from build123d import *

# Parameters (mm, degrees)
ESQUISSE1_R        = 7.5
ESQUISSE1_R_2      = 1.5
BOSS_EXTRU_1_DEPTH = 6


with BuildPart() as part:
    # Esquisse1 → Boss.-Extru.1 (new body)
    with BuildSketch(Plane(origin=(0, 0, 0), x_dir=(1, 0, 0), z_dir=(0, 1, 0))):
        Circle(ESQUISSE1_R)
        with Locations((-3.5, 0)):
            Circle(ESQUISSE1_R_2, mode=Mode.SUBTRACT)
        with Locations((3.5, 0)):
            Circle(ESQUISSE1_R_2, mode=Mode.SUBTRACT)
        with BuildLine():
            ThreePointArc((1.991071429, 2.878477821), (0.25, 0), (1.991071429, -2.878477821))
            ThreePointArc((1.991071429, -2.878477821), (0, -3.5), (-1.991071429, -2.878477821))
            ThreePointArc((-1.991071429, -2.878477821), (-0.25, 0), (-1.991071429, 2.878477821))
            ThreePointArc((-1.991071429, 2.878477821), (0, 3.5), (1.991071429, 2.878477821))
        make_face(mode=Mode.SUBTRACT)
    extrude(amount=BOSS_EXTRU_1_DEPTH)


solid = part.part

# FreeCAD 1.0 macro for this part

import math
import FreeCAD as App
import Part
import Sketcher
from FreeCAD import Vector

doc = App.newDocument("Part")
body = doc.addObject("PartDesign::Body", "Body")

# Sketch on XZ plane
sketch1 = body.newObject("Sketcher::SketchObject", "Sketch")
sketch1.AttachmentSupport = (doc.getObject("XZ_Plane"), [""])
sketch1.MapMode = "FlatFace"
sketch1.addGeometry(Part.Circle(Vector(0, 0, 0), Vector(0, 0, 1), 7.5), False)
sketch1.addGeometry(Part.Circle(Vector(-3.5, 0, 0), Vector(0, 0, 1), 1.5), False)
sketch1.addGeometry(Part.ArcOfCircle(Part.Circle(Vector(0, 0, 0), Vector(0, 0, 1), 3.5), math.radians(-125), math.radians(-55)), False)
sketch1.addGeometry(Part.ArcOfCircle(Part.Circle(Vector(3.5, 0, 0), Vector(0, 0, 1), 3.2), math.radians(118), math.radians(242)), False)
sketch1.addGeometry(Part.ArcOfCircle(Part.Circle(Vector(0, 0, 0), Vector(0, 0, 1), 3.5), math.radians(55), math.radians(125)), False)
sketch1.addGeometry(Part.ArcOfCircle(Part.Circle(Vector(-3.5, 0, 0), Vector(0, 0, 1), 3.2), math.radians(-62), math.radians(62)), False)
sketch1.addGeometry(Part.Circle(Vector(3.5, 0, 0), Vector(0, 0, 1), 1.5), False)
sketch1.addConstraint(Sketcher.Constraint("Coincident", 2, 2, 3, 2))
sketch1.addConstraint(Sketcher.Constraint("Coincident", 3, 1, 4, 1))
sketch1.addConstraint(Sketcher.Constraint("Coincident", 4, 2, 5, 2))
sketch1.addConstraint(Sketcher.Constraint("Coincident", 5, 1, 2, 1))
sketch1.addConstraint(Sketcher.Constraint("Coincident", 0, 3, -1, 1))
sketch1.addConstraint(Sketcher.Constraint("Coincident", 2, 3, -1, 1))
sketch1.addConstraint(Sketcher.Constraint("Coincident", 4, 3, -1, 1))
sketch1.addConstraint(Sketcher.Constraint("Coincident", 5, 3, 1, 3))
sketch1.addConstraint(Sketcher.Constraint("Coincident", 6, 3, 3, 3))
sketch1.addConstraint(Sketcher.Constraint("Equal", 2, 4))
sketch1.addConstraint(Sketcher.Constraint("Equal", 3, 5))
sketch1.addConstraint(Sketcher.Constraint("Equal", 1, 6))
sketch1.addConstraint(Sketcher.Constraint("Symmetric", 1, 3, 3, 3, -1, 1))
sketch1.addConstraint(Sketcher.Constraint("PointOnObject", 1, 3, -1))
sketch1.addConstraint(Sketcher.Constraint("Diameter", 0, 15.0))
sketch1.addConstraint(Sketcher.Constraint("Diameter", 1, 3.0))
sketch1.addConstraint(Sketcher.Constraint("Radius", 2, 3.5))
sketch1.addConstraint(Sketcher.Constraint("Radius", 3, 3.25))
sketch1.addConstraint(Sketcher.Constraint("DistanceX", 1, 3, 3, 3, 7.0))
pad1 = body.newObject("PartDesign::Pad", "Pad")
pad1.Profile = sketch1
pad1.Length = 6
pad1.Reversed = True

doc.recompute()
